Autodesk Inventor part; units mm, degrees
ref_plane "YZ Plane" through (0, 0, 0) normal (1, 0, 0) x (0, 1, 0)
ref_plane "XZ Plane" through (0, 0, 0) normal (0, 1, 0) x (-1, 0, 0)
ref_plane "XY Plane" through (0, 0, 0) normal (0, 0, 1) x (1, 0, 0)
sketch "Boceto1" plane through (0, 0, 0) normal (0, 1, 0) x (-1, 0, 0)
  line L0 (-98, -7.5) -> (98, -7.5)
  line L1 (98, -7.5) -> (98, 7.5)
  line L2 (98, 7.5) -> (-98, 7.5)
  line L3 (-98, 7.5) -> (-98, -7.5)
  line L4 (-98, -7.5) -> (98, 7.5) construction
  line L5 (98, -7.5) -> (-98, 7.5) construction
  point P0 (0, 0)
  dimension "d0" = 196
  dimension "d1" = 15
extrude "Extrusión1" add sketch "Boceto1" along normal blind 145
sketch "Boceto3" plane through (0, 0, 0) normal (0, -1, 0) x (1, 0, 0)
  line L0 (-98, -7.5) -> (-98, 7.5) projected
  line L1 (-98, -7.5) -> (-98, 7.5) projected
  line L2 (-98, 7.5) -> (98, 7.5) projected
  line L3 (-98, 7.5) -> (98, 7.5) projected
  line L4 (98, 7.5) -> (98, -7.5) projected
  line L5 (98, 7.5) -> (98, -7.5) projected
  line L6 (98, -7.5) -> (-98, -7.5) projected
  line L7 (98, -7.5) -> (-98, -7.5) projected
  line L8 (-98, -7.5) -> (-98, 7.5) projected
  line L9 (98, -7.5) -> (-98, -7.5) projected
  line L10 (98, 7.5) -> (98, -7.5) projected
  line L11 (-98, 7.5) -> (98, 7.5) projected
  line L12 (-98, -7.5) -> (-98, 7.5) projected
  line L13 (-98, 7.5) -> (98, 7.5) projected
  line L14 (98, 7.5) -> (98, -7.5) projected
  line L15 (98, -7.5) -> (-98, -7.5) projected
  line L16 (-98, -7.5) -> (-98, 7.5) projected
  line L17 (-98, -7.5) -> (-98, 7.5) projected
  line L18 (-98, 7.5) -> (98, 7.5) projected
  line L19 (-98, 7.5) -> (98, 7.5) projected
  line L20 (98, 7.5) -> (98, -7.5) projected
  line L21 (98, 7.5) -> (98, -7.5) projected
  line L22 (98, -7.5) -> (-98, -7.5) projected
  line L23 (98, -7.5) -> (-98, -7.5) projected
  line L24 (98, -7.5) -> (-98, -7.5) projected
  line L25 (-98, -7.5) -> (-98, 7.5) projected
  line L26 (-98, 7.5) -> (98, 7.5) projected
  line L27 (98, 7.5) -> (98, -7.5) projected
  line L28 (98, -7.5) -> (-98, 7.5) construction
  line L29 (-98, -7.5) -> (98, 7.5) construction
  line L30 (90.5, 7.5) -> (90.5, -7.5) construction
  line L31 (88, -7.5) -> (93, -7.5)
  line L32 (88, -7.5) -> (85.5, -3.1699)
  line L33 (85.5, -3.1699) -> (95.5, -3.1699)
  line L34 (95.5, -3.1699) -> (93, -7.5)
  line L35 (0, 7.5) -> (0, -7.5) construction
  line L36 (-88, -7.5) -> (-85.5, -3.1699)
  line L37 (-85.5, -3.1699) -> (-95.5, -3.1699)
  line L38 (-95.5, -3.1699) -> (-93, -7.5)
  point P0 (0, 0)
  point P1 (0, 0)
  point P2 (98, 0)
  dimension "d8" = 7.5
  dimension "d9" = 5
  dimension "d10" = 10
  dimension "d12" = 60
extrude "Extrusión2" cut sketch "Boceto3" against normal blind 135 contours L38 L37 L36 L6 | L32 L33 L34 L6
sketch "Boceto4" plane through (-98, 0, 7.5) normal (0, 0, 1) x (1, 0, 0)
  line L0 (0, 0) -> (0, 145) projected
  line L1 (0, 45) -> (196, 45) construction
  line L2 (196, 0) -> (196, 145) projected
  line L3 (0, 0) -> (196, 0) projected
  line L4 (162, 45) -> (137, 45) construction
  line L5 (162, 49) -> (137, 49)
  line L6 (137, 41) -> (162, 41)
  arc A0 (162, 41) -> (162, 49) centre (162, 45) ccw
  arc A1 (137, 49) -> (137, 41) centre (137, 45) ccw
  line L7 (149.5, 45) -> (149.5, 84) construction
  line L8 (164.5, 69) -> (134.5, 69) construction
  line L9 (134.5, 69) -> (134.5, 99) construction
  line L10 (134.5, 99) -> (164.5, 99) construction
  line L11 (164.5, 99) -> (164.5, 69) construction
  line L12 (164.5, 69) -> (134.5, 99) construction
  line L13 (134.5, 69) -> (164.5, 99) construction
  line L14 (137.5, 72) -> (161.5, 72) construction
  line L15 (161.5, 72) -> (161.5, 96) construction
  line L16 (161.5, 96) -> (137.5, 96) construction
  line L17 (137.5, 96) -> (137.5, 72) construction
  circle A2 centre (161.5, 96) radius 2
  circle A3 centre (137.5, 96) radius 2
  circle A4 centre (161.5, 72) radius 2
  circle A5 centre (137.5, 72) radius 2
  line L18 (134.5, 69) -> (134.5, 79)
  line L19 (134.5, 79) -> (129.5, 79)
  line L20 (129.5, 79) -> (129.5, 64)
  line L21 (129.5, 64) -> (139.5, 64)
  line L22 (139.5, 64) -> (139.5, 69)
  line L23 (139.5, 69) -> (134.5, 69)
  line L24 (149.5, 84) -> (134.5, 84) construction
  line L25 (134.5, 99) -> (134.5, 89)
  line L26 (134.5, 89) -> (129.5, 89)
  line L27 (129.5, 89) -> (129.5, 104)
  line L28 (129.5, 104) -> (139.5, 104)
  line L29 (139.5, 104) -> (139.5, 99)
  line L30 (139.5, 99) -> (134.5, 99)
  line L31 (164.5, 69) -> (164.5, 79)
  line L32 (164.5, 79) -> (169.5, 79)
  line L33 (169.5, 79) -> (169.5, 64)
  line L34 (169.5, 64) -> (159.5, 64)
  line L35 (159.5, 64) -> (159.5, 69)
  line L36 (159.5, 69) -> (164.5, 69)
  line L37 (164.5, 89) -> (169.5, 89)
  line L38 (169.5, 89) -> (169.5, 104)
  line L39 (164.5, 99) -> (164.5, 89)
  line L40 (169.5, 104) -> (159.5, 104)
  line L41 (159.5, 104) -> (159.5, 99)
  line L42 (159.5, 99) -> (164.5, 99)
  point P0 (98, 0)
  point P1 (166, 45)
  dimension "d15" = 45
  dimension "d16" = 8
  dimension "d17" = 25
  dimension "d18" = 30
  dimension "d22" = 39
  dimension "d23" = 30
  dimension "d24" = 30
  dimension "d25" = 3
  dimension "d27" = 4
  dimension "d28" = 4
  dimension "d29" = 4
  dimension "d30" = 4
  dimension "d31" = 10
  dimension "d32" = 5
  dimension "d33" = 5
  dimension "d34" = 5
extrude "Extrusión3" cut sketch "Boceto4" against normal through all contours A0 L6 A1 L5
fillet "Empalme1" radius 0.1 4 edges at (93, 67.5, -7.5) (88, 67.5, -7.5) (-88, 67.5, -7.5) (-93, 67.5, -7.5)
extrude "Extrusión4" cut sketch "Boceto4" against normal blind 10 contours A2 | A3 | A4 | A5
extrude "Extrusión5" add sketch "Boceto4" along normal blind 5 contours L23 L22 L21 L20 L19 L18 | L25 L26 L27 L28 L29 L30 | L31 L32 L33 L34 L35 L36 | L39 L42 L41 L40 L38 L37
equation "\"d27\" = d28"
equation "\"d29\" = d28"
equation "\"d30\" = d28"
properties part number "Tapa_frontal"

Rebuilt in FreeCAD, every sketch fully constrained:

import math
import FreeCAD as App
import Part
import Sketcher
Q = App.Units.Quantity


def edges_at(feature, points):
    """Names of the edges that pass closest to the given points."""
    edges = feature.Shape.Edges
    near = lambda p: min(range(len(edges)), key=lambda i: edges[i].distToShape(Part.Vertex(*p))[0])
    return sorted({f"Edge{near(p) + 1}" for p in points})


def add_polygon(sketch, points):
    """Adds a closed chain of lines whose ends are joined by coincident constraints."""
    first, n = sketch.GeometryCount, len(points)
    for a, b in zip(points, points[1:] + points[:1]):
        sketch.addGeometry(Part.LineSegment(App.Vector(*a, 0), App.Vector(*b, 0)), False)
    for i in range(n):
        sketch.addConstraint(Sketcher.Constraint("Coincident", first + i, 2, first + (i + 1) % n, 1))

doc = App.newDocument("Part")
body = doc.addObject("PartDesign::Body", "Body")

# Sketch on XZ plane
sketch1 = body.newObject("Sketcher::SketchObject", "Sketch")
sketch1.AttachmentSupport = (doc.getObject("XZ_Plane"), [""])
sketch1.MapMode = "FlatFace"
add_polygon(sketch1, [(98, 7.5), (98, -7.5), (-98, -7.5), (-98, 7.5)])  # lines 0-3
sketch1.addConstraint(Sketcher.Constraint("Vertical", 0))
sketch1.addConstraint(Sketcher.Constraint("Horizontal", 1))
sketch1.addConstraint(Sketcher.Constraint("Vertical", 2))
sketch1.addConstraint(Sketcher.Constraint("Horizontal", 3))
sketch1.addConstraint(Sketcher.Constraint("Symmetric", 0, 2, 2, 2, -1, 1))
sketch1.addConstraint(Sketcher.Constraint("DistanceX", 1, 2, 1, 1, 196.0))
sketch1.addConstraint(Sketcher.Constraint("DistanceY", 0, 2, 0, 1, 15.0))
pad1 = body.newObject("PartDesign::Pad", "Pad")
pad1.Profile = sketch1
pad1.Length = 145
pad1.Reversed = True

# Sketch on XZ plane
sketch2 = body.newObject("Sketcher::SketchObject", "Sketch001")
sketch2.AttachmentSupport = (doc.getObject("XZ_Plane"), [""])
sketch2.MapMode = "FlatFace"
add_polygon(sketch2, [(-95.5, -3.1699), (-93, -7.5), (-88, -7.5), (-85.5, -3.1699)])  # lines 0-3
add_polygon(sketch2, [(85.5, -3.1699), (88, -7.5), (93, -7.5), (95.5, -3.1699)])  # lines 4-7
sketch2.addConstraint(Sketcher.Constraint("Horizontal", 1))
sketch2.addConstraint(Sketcher.Constraint("Horizontal", 3))
sketch2.addConstraint(Sketcher.Constraint("Horizontal", 5))
sketch2.addConstraint(Sketcher.Constraint("Horizontal", 7))
sketch2.addConstraint(Sketcher.Constraint("Symmetric", 1, 2, 4, 2, -2))
sketch2.addConstraint(Sketcher.Constraint("Symmetric", 3, 2, 6, 2, -2))
sketch2.addConstraint(Sketcher.Constraint("Parallel", 0, 4))
sketch2.addConstraint(Sketcher.Constraint("Parallel", 2, 6))
sketch2.addConstraint(Sketcher.Constraint("Equal", 1, 5))
sketch2.addConstraint(Sketcher.Constraint("DistanceX", 1, 1, 1, 2, 5.0))
sketch2.addConstraint(Sketcher.Constraint("DistanceX", 3, 2, 3, 1, 10.0))
sketch2.addConstraint(Sketcher.Constraint("Angle", 0, Q("-59.9998 deg")))
sketch2.addConstraint(Sketcher.Constraint("DistanceY", 0, 2, -1, 1, 7.5))
sketch2.addConstraint(Sketcher.Constraint("DistanceX", 0, 2, -1, 1, 93.0))
pocket1 = body.newObject("PartDesign::Pocket", "Pocket")
pocket1.Profile = sketch2
pocket1.Length = 135

# Sketch on XY plane
sketch3 = body.newObject("Sketcher::SketchObject", "Sketch002")
sketch3.AttachmentSupport = (doc.getObject("XY_Plane"), [""])
sketch3.MapMode = "FlatFace"
sketch3.AttachmentOffset = App.Placement(App.Vector(0, 0, 7.5), App.Rotation())
sketch3.addGeometry(Part.ArcOfCircle(Part.Circle(App.Vector(64, 45, 0), App.Vector(0, 0, 1), 4), math.radians(-90), math.radians(90)), False)
sketch3.addGeometry(Part.LineSegment(App.Vector(64, 49, 0), App.Vector(39, 49, 0)), False)
sketch3.addGeometry(Part.ArcOfCircle(Part.Circle(App.Vector(39, 45, 0), App.Vector(0, 0, 1), 4), math.radians(90), math.radians(270)), False)
sketch3.addGeometry(Part.LineSegment(App.Vector(39, 41, 0), App.Vector(64, 41, 0)), False)
sketch3.addConstraint(Sketcher.Constraint("Tangent", 0, 2, 1, 1))
sketch3.addConstraint(Sketcher.Constraint("Tangent", 1, 2, 2, 1))
sketch3.addConstraint(Sketcher.Constraint("Tangent", 2, 2, 3, 1))
sketch3.addConstraint(Sketcher.Constraint("Tangent", 3, 2, 0, 1))
sketch3.addConstraint(Sketcher.Constraint("Horizontal", 1))
sketch3.addConstraint(Sketcher.Constraint("Horizontal", 3))
sketch3.addConstraint(Sketcher.Constraint("Radius", 0, 4.0))
sketch3.addConstraint(Sketcher.Constraint("DistanceX", 1, 2, 1, 1, 25.0))
sketch3.addConstraint(Sketcher.Constraint("DistanceY", -1, 1, 0, 3, 45.0))
sketch3.addConstraint(Sketcher.Constraint("DistanceX", -1, 1, 2, 3, 39.0))
pocket2 = body.newObject("PartDesign::Pocket", "Pocket001")
pocket2.Profile = sketch3
pocket2.Type = "ThroughAll"
doc.recompute()

fillet = body.newObject("PartDesign::Fillet", "Fillet")
fillet.Base = (pocket2, edges_at(pocket2, [
    (93, 67.5, -7.5),
    (88, 67.5, -7.5),
    (-88, 67.5, -7.5),
    (-93, 67.5, -7.5),
]))
fillet.Radius = 0.1

# Sketch on XY plane
sketch4 = body.newObject("Sketcher::SketchObject", "Sketch003")
sketch4.AttachmentSupport = (doc.getObject("XY_Plane"), [""])
sketch4.MapMode = "FlatFace"
sketch4.AttachmentOffset = App.Placement(App.Vector(0, 0, 7.5), App.Rotation())
sketch4.addGeometry(Part.Circle(App.Vector(63.5, 96, 0), App.Vector(0, 0, 1), 2), False)
sketch4.addGeometry(Part.Circle(App.Vector(39.5, 96, 0), App.Vector(0, 0, 1), 2), False)
sketch4.addGeometry(Part.Circle(App.Vector(63.5, 72, 0), App.Vector(0, 0, 1), 2), False)
sketch4.addGeometry(Part.Circle(App.Vector(39.5, 72, 0), App.Vector(0, 0, 1), 2), False)
sketch4.addConstraint(Sketcher.Constraint("Equal", 0, 1))
sketch4.addConstraint(Sketcher.Constraint("Equal", 1, 2))
sketch4.addConstraint(Sketcher.Constraint("Equal", 2, 3))
sketch4.addConstraint(Sketcher.Constraint("Horizontal", 0, 3, 1, 3))
sketch4.addConstraint(Sketcher.Constraint("Horizontal", 2, 3, 3, 3))
sketch4.addConstraint(Sketcher.Constraint("Vertical", 0, 3, 2, 3))
sketch4.addConstraint(Sketcher.Constraint("Vertical", 1, 3, 3, 3))
sketch4.addConstraint(Sketcher.Constraint("Diameter", 0, 4.0))
sketch4.addConstraint(Sketcher.Constraint("DistanceY", -1, 1, 0, 3, 96.0))
sketch4.addConstraint(Sketcher.Constraint("DistanceY", -1, 1, 2, 3, 72.0))
sketch4.addConstraint(Sketcher.Constraint("DistanceX", 1, 3, 0, 3, 24.0))
sketch4.addConstraint(Sketcher.Constraint("DistanceX", -1, 1, 0, 3, 63.5))
pocket3 = body.newObject("PartDesign::Pocket", "Pocket002")
pocket3.Profile = sketch4
pocket3.Length = 10

# Sketch on XY plane
sketch5 = body.newObject("Sketcher::SketchObject", "Sketch004")
sketch5.AttachmentSupport = (doc.getObject("XY_Plane"), [""])
sketch5.MapMode = "FlatFace"
sketch5.AttachmentOffset = App.Placement(App.Vector(0, 0, 7.5), App.Rotation())
add_polygon(sketch5, [(41.5, 69), (36.5, 69), (36.5, 79), (31.5, 79), (31.5, 64), (41.5, 64)])  # lines 0-5
add_polygon(sketch5, [(36.5, 89), (36.5, 99), (41.5, 99), (41.5, 104), (31.5, 104), (31.5, 89)])  # lines 6-11
add_polygon(sketch5, [(66.5, 79), (66.5, 69), (61.5, 69), (61.5, 64), (71.5, 64), (71.5, 79)])  # lines 12-17
add_polygon(sketch5, [(66.5, 99), (66.5, 89), (71.5, 89), (71.5, 104), (61.5, 104), (61.5, 99)])  # lines 18-23
sketch5.addConstraint(Sketcher.Constraint("Horizontal", 0))
sketch5.addConstraint(Sketcher.Constraint("Vertical", 1))
sketch5.addConstraint(Sketcher.Constraint("Horizontal", 2))
sketch5.addConstraint(Sketcher.Constraint("Vertical", 3))
sketch5.addConstraint(Sketcher.Constraint("Horizontal", 4))
sketch5.addConstraint(Sketcher.Constraint("Vertical", 5))
sketch5.addConstraint(Sketcher.Constraint("Vertical", 6))
sketch5.addConstraint(Sketcher.Constraint("Horizontal", 7))
sketch5.addConstraint(Sketcher.Constraint("Vertical", 8))
sketch5.addConstraint(Sketcher.Constraint("Horizontal", 9))
sketch5.addConstraint(Sketcher.Constraint("Vertical", 10))
sketch5.addConstraint(Sketcher.Constraint("Horizontal", 11))
sketch5.addConstraint(Sketcher.Constraint("Vertical", 12))
sketch5.addConstraint(Sketcher.Constraint("Horizontal", 13))
sketch5.addConstraint(Sketcher.Constraint("Vertical", 14))
sketch5.addConstraint(Sketcher.Constraint("Horizontal", 15))
sketch5.addConstraint(Sketcher.Constraint("Vertical", 16))
sketch5.addConstraint(Sketcher.Constraint("Horizontal", 17))
sketch5.addConstraint(Sketcher.Constraint("Vertical", 18))
sketch5.addConstraint(Sketcher.Constraint("Horizontal", 19))
sketch5.addConstraint(Sketcher.Constraint("Vertical", 20))
sketch5.addConstraint(Sketcher.Constraint("Horizontal", 21))
sketch5.addConstraint(Sketcher.Constraint("Vertical", 22))
sketch5.addConstraint(Sketcher.Constraint("Horizontal", 23))
sketch5.addConstraint(Sketcher.Constraint("Horizontal", 5, 2, 12, 2))
sketch5.addConstraint(Sketcher.Constraint("Horizontal", 4, 2, 14, 2))
sketch5.addConstraint(Sketcher.Constraint("Horizontal", 2, 2, 16, 2))
sketch5.addConstraint(Sketcher.Constraint("Horizontal", 11, 2, 18, 2))
sketch5.addConstraint(Sketcher.Constraint("Horizontal", 9, 2, 20, 2))
sketch5.addConstraint(Sketcher.Constraint("Horizontal", 7, 2, 22, 2))
sketch5.addConstraint(Sketcher.Constraint("Vertical", 1, 2, 6, 2))
sketch5.addConstraint(Sketcher.Constraint("Vertical", 5, 2, 7, 2))
sketch5.addConstraint(Sketcher.Constraint("Vertical", 3, 2, 9, 2))
sketch5.addConstraint(Sketcher.Constraint("Vertical", 17, 2, 18, 2))
sketch5.addConstraint(Sketcher.Constraint("Vertical", 16, 2, 19, 2))
sketch5.addConstraint(Sketcher.Constraint("Vertical", 14, 2, 21, 2))
sketch5.addConstraint(Sketcher.Constraint("Equal", 0, 2))
sketch5.addConstraint(Sketcher.Constraint("Equal", 11, 13))
sketch5.addConstraint(Sketcher.Constraint("Equal", 9, 15))
sketch5.addConstraint(Sketcher.Constraint("Equal", 21, 1))
sketch5.addConstraint(Sketcher.Constraint("Equal", 23, 5))
sketch5.addConstraint(Sketcher.Constraint("Equal", 1, 6))
sketch5.addConstraint(Sketcher.Constraint("Equal", 5, 8))
sketch5.addConstraint(Sketcher.Constraint("DistanceX", 0, 2, 0, 1, 5.0))
sketch5.addConstraint(Sketcher.Constraint("DistanceY", 0, 2, 6, 2, 30.0))
sketch5.addConstraint(Sketcher.Constraint("DistanceX", 5, 2, 12, 2, 25.0))
sketch5.addConstraint(Sketcher.Constraint("DistanceY", -1, 1, 0, 2, 69.0))
sketch5.addConstraint(Sketcher.Constraint("DistanceX", -1, 1, 0, 2, 36.5))
pad2 = body.newObject("PartDesign::Pad", "Pad001")
pad2.Profile = sketch5
pad2.Length = 5

doc.recompute()
